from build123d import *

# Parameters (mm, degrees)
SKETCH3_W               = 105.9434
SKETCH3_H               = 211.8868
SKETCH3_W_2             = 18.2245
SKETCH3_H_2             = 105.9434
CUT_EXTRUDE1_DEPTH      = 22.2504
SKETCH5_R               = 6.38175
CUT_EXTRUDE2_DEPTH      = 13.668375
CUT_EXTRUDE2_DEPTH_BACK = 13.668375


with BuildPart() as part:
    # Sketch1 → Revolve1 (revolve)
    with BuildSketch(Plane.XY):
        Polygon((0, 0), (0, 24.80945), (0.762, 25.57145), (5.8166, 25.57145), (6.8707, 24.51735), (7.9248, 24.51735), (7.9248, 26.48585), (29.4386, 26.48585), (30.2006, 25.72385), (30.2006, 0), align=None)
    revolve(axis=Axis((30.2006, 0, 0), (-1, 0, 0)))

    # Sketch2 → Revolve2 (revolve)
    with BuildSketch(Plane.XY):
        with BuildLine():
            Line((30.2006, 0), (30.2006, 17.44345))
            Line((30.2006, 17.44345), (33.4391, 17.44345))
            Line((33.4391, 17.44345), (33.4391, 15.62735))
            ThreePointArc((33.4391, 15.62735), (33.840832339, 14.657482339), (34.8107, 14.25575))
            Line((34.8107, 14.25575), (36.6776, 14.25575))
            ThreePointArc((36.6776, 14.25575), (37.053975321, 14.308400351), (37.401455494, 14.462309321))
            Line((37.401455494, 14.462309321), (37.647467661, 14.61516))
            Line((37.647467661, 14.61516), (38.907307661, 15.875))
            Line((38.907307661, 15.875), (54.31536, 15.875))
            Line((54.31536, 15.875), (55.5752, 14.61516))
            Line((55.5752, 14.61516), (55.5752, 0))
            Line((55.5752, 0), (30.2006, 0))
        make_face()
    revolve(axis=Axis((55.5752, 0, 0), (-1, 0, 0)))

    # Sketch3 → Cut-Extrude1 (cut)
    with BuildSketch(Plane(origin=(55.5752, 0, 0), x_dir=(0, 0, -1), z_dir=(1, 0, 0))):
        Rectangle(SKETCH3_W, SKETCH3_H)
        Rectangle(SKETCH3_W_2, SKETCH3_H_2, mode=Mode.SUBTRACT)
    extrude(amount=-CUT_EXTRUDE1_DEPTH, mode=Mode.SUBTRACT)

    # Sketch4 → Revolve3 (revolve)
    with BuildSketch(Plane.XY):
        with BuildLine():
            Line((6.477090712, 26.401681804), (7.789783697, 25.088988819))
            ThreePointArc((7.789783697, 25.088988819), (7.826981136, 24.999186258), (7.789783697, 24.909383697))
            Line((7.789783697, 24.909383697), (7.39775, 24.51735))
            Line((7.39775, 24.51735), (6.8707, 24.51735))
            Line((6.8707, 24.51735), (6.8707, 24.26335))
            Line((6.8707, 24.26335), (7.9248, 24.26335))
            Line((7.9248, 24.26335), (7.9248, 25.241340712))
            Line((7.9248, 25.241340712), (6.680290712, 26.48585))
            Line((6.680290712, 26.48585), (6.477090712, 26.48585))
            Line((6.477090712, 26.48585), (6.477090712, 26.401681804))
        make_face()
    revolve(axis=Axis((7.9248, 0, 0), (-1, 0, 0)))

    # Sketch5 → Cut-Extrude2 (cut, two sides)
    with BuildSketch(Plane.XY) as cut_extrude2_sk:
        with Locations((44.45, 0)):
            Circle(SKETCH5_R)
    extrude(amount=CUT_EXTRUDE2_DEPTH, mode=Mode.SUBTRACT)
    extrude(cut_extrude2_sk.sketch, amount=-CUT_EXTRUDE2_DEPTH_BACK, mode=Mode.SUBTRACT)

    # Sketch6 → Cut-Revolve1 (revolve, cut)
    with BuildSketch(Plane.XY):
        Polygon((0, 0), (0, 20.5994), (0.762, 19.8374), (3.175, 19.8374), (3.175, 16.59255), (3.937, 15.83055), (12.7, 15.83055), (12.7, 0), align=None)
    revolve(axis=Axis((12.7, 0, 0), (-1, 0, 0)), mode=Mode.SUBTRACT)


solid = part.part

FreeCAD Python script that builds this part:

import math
import FreeCAD as App
import Part
import Sketcher
Q = App.Units.Quantity


def add_polygon(sketch, points):
    """Adds a closed chain of lines whose ends are joined by coincident constraints."""
    first, n = sketch.GeometryCount, len(points)
    for a, b in zip(points, points[1:] + points[:1]):
        sketch.addGeometry(Part.LineSegment(App.Vector(*a, 0), App.Vector(*b, 0)), False)
    for i in range(n):
        sketch.addConstraint(Sketcher.Constraint("Coincident", first + i, 2, first + (i + 1) % n, 1))

doc = App.newDocument("Part")
body = doc.addObject("PartDesign::Body", "Body")

sketch1 = body.newObject("Sketcher::SketchObject", "Sketch")
sketch1.AttachmentSupport = (doc.getObject("XY_Plane"), [""])
sketch1.MapMode = "FlatFace"
add_polygon(sketch1, [(0, 24.80945), (0, 0), (30.2006, 0), (30.2006, 25.72385), (29.4386, 26.48585), (7.9248, 26.48585), (7.9248, 24.51735), (6.8707, 24.51735), (5.8166, 25.57145), (0.762, 25.57145)])
sketch1.addConstraint([
    Sketcher.Constraint("Vertical", 0),
    Sketcher.Constraint("Horizontal", 1),
    Sketcher.Constraint("Vertical", 2),
    Sketcher.Constraint("Horizontal", 4),
    Sketcher.Constraint("Vertical", 5),
    Sketcher.Constraint("Horizontal", 6),
    Sketcher.Constraint("Horizontal", 8),
    Sketcher.Constraint("Coincident", 0, 2, -1, 1),
    Sketcher.Constraint("Parallel", 3, 7),
    Sketcher.Constraint("Perpendicular", 7, 9),
    Sketcher.Constraint("Equal", 3, 9),
    Sketcher.Constraint("Angle", 3, Q("135 deg")),
    Sketcher.Constraint("DistanceX", 1, 1, 1, 2, Q("1.189 in")),
    Sketcher.Constraint("DistanceX", 4, 2, 4, 1, Q("0.847 in")),
    Sketcher.Constraint("DistanceX", 8, 2, 8, 1, Q("0.199 in")),
    Sketcher.Constraint("DistanceX", -1, 1, 8, 2, Q("0.03 in")),
    Sketcher.Constraint("DistanceX", 6, 2, 6, 1, Q("0.0415 in")),
    Sketcher.Constraint("DistanceY", 5, 2, 5, 1, Q("0.0775 in")),
    Sketcher.Constraint("DistanceY", 0, 2, 0, 1, Q("24.80945 mm")),
])
revolution = body.newObject("PartDesign::Revolution", "Revolution")
revolution.Profile = sketch1
revolution.ReferenceAxis = (sketch1, ["H_Axis"])
revolution.Angle = 360

sketch2 = body.newObject("Sketcher::SketchObject", "Sketch001")
sketch2.AttachmentSupport = (doc.getObject("XY_Plane"), [""])
sketch2.MapMode = "FlatFace"
sketch2.addGeometry([
    Part.LineSegment(App.Vector(30.2006, 17.44345, 0), App.Vector(30.2006, 0, 0)),
    Part.LineSegment(App.Vector(30.2006, 0, 0), App.Vector(55.5752, 0, 0)),
    Part.LineSegment(App.Vector(55.5752, 0, 0), App.Vector(55.5752, 14.61516, 0)),
    Part.LineSegment(App.Vector(55.5752, 14.61516, 0), App.Vector(54.31536, 15.875, 0)),
    Part.LineSegment(App.Vector(54.31536, 15.875, 0), App.Vector(38.907308, 15.875, 0)),
    Part.LineSegment(App.Vector(38.907308, 15.875, 0), App.Vector(37.647468, 14.61516, 0)),
    Part.LineSegment(App.Vector(37.647468, 14.61516, 0), App.Vector(37.401455, 14.462309, 0)),
    Part.ArcOfCircle(Part.Circle(App.Vector(36.6776, 15.62735, 0), App.Vector(0, 0, 1), 1.3716), math.radians(-90), math.radians(-58.146758)),
    Part.LineSegment(App.Vector(36.6776, 14.25575, 0), App.Vector(34.8107, 14.25575, 0)),
    Part.ArcOfCircle(Part.Circle(App.Vector(34.8107, 15.62735, 0), App.Vector(0, 0, 1), 1.3716), math.radians(180), math.radians(270)),
    Part.LineSegment(App.Vector(33.4391, 15.62735, 0), App.Vector(33.4391, 17.44345, 0)),
    Part.LineSegment(App.Vector(33.4391, 17.44345, 0), App.Vector(30.2006, 17.44345, 0)),
], False)
sketch2.addConstraint([
    Sketcher.Constraint("Coincident", 0, 2, 1, 1),
    Sketcher.Constraint("Coincident", 1, 2, 2, 1),
    Sketcher.Constraint("Coincident", 2, 2, 3, 1),
    Sketcher.Constraint("Coincident", 3, 2, 4, 1),
    Sketcher.Constraint("Coincident", 4, 2, 5, 1),
    Sketcher.Constraint("Coincident", 5, 2, 6, 1),
    Sketcher.Constraint("Tangent", 6, 2, 7, 2),
    Sketcher.Constraint("Tangent", 7, 1, 8, 1),
    Sketcher.Constraint("Tangent", 8, 2, 9, 2),
    Sketcher.Constraint("Tangent", 9, 1, 10, 1),
    Sketcher.Constraint("Coincident", 10, 2, 11, 1),
    Sketcher.Constraint("Coincident", 11, 2, 0, 1),
    Sketcher.Constraint("Vertical", 0),
    Sketcher.Constraint("Horizontal", 1),
    Sketcher.Constraint("Vertical", 2),
    Sketcher.Constraint("Horizontal", 4),
    Sketcher.Constraint("Horizontal", 8),
    Sketcher.Constraint("Vertical", 10),
    Sketcher.Constraint("Horizontal", 11),
    Sketcher.Constraint("Equal", 7, 9),
    Sketcher.Constraint("PointOnObject", 0, 2, -1),
    Sketcher.Constraint("Perpendicular", 3, 5),
    Sketcher.Constraint("Horizontal", 2, 2, 5, 2),
    Sketcher.Constraint("Equal", 3, 5),
    Sketcher.Constraint("Radius", 7, Q("0.054 in")),
    Sketcher.Constraint("DistanceX", 1, 1, 1, 2, Q("0.999 in")),
    Sketcher.Constraint("DistanceX", 8, 2, 8, 1, Q("0.0735 in")),
    Sketcher.Constraint("DistanceX", 11, 2, 11, 1, Q("0.1275 in")),
    Sketcher.Constraint("DistanceY", 2, 1, 2, 2, Q("0.5754 in")),
    Sketcher.Constraint("DistanceY", 10, 1, 10, 2, Q("0.0715 in")),
    Sketcher.Constraint("DistanceX", -1, 1, 7, 3, Q("1.444 in")),
    Sketcher.Constraint("DistanceY", -1, 1, 3, 2, Q("0.625 in")),
    Sketcher.Constraint("DistanceY", 0, 2, 0, 1, Q("17.44345 mm")),
    Sketcher.Constraint("Distance", 6, Q("0.28963 mm")),
])
revolution2 = body.newObject("PartDesign::Revolution", "Revolution001")
revolution2.Profile = sketch2
revolution2.ReferenceAxis = (sketch2, ["H_Axis"])
revolution2.Angle = 360

sketch3 = body.newObject("Sketcher::SketchObject", "Sketch002")
sketch3.AttachmentSupport = (doc.getObject("YZ_Plane"), [""])
sketch3.MapMode = "FlatFace"
sketch3.AttachmentOffset = App.Placement(App.Vector(0, 0, 2.188 * 25.4), App.Rotation())
add_polygon(sketch3, [(105.9434, 52.9717), (-105.9434, 52.9717), (-105.9434, -52.9717), (105.9434, -52.9717)])
add_polygon(sketch3, [(-52.9717, -9.11225), (-52.9717, 9.11225), (52.9717, 9.11225), (52.9717, -9.11225)])
sketch3.addConstraint([
    Sketcher.Constraint("Horizontal", 0),
    Sketcher.Constraint("Vertical", 1),
    Sketcher.Constraint("Horizontal", 2),
    Sketcher.Constraint("Vertical", 3),
    Sketcher.Constraint("Vertical", 4),
    Sketcher.Constraint("Horizontal", 5),
    Sketcher.Constraint("Vertical", 6),
    Sketcher.Constraint("Horizontal", 7),
    Sketcher.Constraint("Symmetric", 0, 2, 2, 2, -1, 1),
    Sketcher.Constraint("Symmetric", 4, 2, 6, 2, -1, 1),
    Sketcher.Constraint("Equal", 7, 1),
    Sketcher.Constraint("DistanceX", 0, 2, 0, 1, Q("8.342 in")),
    Sketcher.Constraint("DistanceX", 5, 1, 5, 2, Q("4.171 in")),
    Sketcher.Constraint("DistanceY", 4, 1, 4, 2, Q("0.7175 in")),
])
pocket1 = body.newObject("PartDesign::Pocket", "Pocket")
pocket1.Profile = sketch3
pocket1.Length = Q("0.876 in")

sketch4 = body.newObject("Sketcher::SketchObject", "Sketch003")
sketch4.AttachmentSupport = (doc.getObject("XY_Plane"), [""])
sketch4.MapMode = "FlatFace"
sketch4.addGeometry([
    Part.LineSegment(App.Vector(6.477091, 26.401682, 0), App.Vector(7.789784, 25.088989, 0)),
    Part.ArcOfCircle(Part.Circle(App.Vector(7.699981, 24.999186, 0), App.Vector(0, 0, 1), 0.127), math.radians(-45), math.radians(45)),
    Part.LineSegment(App.Vector(7.789784, 24.909384, 0), App.Vector(7.39775, 24.51735, 0)),
    Part.LineSegment(App.Vector(7.39775, 24.51735, 0), App.Vector(6.8707, 24.51735, 0)),
    Part.LineSegment(App.Vector(6.8707, 24.51735, 0), App.Vector(6.8707, 24.26335, 0)),
    Part.LineSegment(App.Vector(6.8707, 24.26335, 0), App.Vector(7.9248, 24.26335, 0)),
    Part.LineSegment(App.Vector(7.9248, 24.26335, 0), App.Vector(7.9248, 25.241341, 0)),
    Part.LineSegment(App.Vector(7.9248, 25.241341, 0), App.Vector(6.680291, 26.48585, 0)),
    Part.LineSegment(App.Vector(6.680291, 26.48585, 0), App.Vector(6.477091, 26.48585, 0)),
    Part.LineSegment(App.Vector(6.477091, 26.48585, 0), App.Vector(6.477091, 26.401682, 0)),
], False)
sketch4.addConstraint([
    Sketcher.Constraint("Tangent", 0, 2, 1, 2),
    Sketcher.Constraint("Tangent", 1, 1, 2, 1),
    Sketcher.Constraint("Coincident", 2, 2, 3, 1),
    Sketcher.Constraint("Coincident", 3, 2, 4, 1),
    Sketcher.Constraint("Coincident", 4, 2, 5, 1),
    Sketcher.Constraint("Coincident", 5, 2, 6, 1),
    Sketcher.Constraint("Coincident", 6, 2, 7, 1),
    Sketcher.Constraint("Coincident", 7, 2, 8, 1),
    Sketcher.Constraint("Coincident", 8, 2, 9, 1),
    Sketcher.Constraint("Coincident", 9, 2, 0, 1),
    Sketcher.Constraint("Horizontal", 3),
    Sketcher.Constraint("Vertical", 4),
    Sketcher.Constraint("Horizontal", 5),
    Sketcher.Constraint("Vertical", 6),
    Sketcher.Constraint("Horizontal", 8),
    Sketcher.Constraint("Vertical", 9),
    Sketcher.Constraint("Perpendicular", 0, 2),
    Sketcher.Constraint("Perpendicular", 2, 7),
    Sketcher.Constraint("Vertical", 0, 2, 1, 1),
    Sketcher.Constraint("Radius", 1, Q("0.005 in")),
    Sketcher.Constraint("DistanceY", 4, 2, 4, 1, Q("0.01 in")),
    Sketcher.Constraint("DistanceX", 8, 2, 8, 1, Q("0.008 in")),
    Sketcher.Constraint("DistanceX", 5, 1, 5, 2, Q("0.0415 in")),
    Sketcher.Constraint("DistanceX", -1, 1, 5, 2, Q("0.312 in")),
    Sketcher.Constraint("DistanceY", 3, 2, 7, 2, Q("0.0775 in")),
    Sketcher.Constraint("Distance", 7, Q("1.760002 mm")),
    Sketcher.Constraint("DistanceX", 3, 2, 3, 1, Q("0.52705 mm")),
    Sketcher.Constraint("DistanceY", 9, 2, 9, 1, Q("0.084168 mm")),
    Sketcher.Constraint("DistanceY", -1, 1, 0, 2, Q("25.088989 mm")),
])
revolution3 = body.newObject("PartDesign::Revolution", "Revolution002")
revolution3.Profile = sketch4
revolution3.ReferenceAxis = (sketch4, ["H_Axis"])
revolution3.Angle = 360

sketch5 = body.newObject("Sketcher::SketchObject", "Sketch004")
sketch5.AttachmentSupport = (doc.getObject("XY_Plane"), [""])
sketch5.MapMode = "FlatFace"
sketch5.addGeometry(Part.Circle(App.Vector(44.45, 0, 0), App.Vector(0, 0, 1), 6.38175), False)
sketch5.addConstraint([
    Sketcher.Constraint("PointOnObject", 0, 3, -1),
    Sketcher.Constraint("Diameter", 0, Q("0.5025 in")),
    Sketcher.Constraint("DistanceX", -1, 1, 0, 3, Q("1.75 in")),
])
pocket2 = body.newObject("PartDesign::Pocket", "Pocket001")
pocket2.Profile = sketch5
pocket2.Type = "ThroughAll"
pocket2.Midplane = True

sketch6 = body.newObject("Sketcher::SketchObject", "Sketch005")
sketch6.AttachmentSupport = (doc.getObject("XY_Plane"), [""])
sketch6.MapMode = "FlatFace"
add_polygon(sketch6, [(0, 20.5994), (0, 0), (12.7, 0), (12.7, 15.83055), (3.937, 15.83055), (3.175, 16.59255), (3.175, 19.8374), (0.762, 19.8374)])
sketch6.addConstraint([
    Sketcher.Constraint("Vertical", 0),
    Sketcher.Constraint("Horizontal", 1),
    Sketcher.Constraint("Vertical", 2),
    Sketcher.Constraint("Horizontal", 3),
    Sketcher.Constraint("Vertical", 5),
    Sketcher.Constraint("Horizontal", 6),
    Sketcher.Constraint("Coincident", 0, 2, -1, 1),
    Sketcher.Constraint("Parallel", 4, 7),
    Sketcher.Constraint("Equal", 4, 7),
    Sketcher.Constraint("DistanceX", 1, 1, 1, 2, Q("0.5 in")),
    Sketcher.Constraint("Angle", 4, Q("135 deg")),
    Sketcher.Constraint("DistanceX", 3, 2, 3, 1, Q("0.345 in")),
    Sketcher.Constraint("DistanceX", 6, 2, 6, 1, Q("0.095 in")),
    Sketcher.Constraint("DistanceY", 0, 2, 0, 1, Q("0.811 in")),
    Sketcher.Constraint("DistanceY", 2, 1, 2, 2, Q("15.83055 mm")),
])
groove = body.newObject("PartDesign::Groove", "Groove")
groove.Profile = sketch6
groove.ReferenceAxis = (sketch6, ["H_Axis"])
groove.Angle = 360

doc.recompute()
